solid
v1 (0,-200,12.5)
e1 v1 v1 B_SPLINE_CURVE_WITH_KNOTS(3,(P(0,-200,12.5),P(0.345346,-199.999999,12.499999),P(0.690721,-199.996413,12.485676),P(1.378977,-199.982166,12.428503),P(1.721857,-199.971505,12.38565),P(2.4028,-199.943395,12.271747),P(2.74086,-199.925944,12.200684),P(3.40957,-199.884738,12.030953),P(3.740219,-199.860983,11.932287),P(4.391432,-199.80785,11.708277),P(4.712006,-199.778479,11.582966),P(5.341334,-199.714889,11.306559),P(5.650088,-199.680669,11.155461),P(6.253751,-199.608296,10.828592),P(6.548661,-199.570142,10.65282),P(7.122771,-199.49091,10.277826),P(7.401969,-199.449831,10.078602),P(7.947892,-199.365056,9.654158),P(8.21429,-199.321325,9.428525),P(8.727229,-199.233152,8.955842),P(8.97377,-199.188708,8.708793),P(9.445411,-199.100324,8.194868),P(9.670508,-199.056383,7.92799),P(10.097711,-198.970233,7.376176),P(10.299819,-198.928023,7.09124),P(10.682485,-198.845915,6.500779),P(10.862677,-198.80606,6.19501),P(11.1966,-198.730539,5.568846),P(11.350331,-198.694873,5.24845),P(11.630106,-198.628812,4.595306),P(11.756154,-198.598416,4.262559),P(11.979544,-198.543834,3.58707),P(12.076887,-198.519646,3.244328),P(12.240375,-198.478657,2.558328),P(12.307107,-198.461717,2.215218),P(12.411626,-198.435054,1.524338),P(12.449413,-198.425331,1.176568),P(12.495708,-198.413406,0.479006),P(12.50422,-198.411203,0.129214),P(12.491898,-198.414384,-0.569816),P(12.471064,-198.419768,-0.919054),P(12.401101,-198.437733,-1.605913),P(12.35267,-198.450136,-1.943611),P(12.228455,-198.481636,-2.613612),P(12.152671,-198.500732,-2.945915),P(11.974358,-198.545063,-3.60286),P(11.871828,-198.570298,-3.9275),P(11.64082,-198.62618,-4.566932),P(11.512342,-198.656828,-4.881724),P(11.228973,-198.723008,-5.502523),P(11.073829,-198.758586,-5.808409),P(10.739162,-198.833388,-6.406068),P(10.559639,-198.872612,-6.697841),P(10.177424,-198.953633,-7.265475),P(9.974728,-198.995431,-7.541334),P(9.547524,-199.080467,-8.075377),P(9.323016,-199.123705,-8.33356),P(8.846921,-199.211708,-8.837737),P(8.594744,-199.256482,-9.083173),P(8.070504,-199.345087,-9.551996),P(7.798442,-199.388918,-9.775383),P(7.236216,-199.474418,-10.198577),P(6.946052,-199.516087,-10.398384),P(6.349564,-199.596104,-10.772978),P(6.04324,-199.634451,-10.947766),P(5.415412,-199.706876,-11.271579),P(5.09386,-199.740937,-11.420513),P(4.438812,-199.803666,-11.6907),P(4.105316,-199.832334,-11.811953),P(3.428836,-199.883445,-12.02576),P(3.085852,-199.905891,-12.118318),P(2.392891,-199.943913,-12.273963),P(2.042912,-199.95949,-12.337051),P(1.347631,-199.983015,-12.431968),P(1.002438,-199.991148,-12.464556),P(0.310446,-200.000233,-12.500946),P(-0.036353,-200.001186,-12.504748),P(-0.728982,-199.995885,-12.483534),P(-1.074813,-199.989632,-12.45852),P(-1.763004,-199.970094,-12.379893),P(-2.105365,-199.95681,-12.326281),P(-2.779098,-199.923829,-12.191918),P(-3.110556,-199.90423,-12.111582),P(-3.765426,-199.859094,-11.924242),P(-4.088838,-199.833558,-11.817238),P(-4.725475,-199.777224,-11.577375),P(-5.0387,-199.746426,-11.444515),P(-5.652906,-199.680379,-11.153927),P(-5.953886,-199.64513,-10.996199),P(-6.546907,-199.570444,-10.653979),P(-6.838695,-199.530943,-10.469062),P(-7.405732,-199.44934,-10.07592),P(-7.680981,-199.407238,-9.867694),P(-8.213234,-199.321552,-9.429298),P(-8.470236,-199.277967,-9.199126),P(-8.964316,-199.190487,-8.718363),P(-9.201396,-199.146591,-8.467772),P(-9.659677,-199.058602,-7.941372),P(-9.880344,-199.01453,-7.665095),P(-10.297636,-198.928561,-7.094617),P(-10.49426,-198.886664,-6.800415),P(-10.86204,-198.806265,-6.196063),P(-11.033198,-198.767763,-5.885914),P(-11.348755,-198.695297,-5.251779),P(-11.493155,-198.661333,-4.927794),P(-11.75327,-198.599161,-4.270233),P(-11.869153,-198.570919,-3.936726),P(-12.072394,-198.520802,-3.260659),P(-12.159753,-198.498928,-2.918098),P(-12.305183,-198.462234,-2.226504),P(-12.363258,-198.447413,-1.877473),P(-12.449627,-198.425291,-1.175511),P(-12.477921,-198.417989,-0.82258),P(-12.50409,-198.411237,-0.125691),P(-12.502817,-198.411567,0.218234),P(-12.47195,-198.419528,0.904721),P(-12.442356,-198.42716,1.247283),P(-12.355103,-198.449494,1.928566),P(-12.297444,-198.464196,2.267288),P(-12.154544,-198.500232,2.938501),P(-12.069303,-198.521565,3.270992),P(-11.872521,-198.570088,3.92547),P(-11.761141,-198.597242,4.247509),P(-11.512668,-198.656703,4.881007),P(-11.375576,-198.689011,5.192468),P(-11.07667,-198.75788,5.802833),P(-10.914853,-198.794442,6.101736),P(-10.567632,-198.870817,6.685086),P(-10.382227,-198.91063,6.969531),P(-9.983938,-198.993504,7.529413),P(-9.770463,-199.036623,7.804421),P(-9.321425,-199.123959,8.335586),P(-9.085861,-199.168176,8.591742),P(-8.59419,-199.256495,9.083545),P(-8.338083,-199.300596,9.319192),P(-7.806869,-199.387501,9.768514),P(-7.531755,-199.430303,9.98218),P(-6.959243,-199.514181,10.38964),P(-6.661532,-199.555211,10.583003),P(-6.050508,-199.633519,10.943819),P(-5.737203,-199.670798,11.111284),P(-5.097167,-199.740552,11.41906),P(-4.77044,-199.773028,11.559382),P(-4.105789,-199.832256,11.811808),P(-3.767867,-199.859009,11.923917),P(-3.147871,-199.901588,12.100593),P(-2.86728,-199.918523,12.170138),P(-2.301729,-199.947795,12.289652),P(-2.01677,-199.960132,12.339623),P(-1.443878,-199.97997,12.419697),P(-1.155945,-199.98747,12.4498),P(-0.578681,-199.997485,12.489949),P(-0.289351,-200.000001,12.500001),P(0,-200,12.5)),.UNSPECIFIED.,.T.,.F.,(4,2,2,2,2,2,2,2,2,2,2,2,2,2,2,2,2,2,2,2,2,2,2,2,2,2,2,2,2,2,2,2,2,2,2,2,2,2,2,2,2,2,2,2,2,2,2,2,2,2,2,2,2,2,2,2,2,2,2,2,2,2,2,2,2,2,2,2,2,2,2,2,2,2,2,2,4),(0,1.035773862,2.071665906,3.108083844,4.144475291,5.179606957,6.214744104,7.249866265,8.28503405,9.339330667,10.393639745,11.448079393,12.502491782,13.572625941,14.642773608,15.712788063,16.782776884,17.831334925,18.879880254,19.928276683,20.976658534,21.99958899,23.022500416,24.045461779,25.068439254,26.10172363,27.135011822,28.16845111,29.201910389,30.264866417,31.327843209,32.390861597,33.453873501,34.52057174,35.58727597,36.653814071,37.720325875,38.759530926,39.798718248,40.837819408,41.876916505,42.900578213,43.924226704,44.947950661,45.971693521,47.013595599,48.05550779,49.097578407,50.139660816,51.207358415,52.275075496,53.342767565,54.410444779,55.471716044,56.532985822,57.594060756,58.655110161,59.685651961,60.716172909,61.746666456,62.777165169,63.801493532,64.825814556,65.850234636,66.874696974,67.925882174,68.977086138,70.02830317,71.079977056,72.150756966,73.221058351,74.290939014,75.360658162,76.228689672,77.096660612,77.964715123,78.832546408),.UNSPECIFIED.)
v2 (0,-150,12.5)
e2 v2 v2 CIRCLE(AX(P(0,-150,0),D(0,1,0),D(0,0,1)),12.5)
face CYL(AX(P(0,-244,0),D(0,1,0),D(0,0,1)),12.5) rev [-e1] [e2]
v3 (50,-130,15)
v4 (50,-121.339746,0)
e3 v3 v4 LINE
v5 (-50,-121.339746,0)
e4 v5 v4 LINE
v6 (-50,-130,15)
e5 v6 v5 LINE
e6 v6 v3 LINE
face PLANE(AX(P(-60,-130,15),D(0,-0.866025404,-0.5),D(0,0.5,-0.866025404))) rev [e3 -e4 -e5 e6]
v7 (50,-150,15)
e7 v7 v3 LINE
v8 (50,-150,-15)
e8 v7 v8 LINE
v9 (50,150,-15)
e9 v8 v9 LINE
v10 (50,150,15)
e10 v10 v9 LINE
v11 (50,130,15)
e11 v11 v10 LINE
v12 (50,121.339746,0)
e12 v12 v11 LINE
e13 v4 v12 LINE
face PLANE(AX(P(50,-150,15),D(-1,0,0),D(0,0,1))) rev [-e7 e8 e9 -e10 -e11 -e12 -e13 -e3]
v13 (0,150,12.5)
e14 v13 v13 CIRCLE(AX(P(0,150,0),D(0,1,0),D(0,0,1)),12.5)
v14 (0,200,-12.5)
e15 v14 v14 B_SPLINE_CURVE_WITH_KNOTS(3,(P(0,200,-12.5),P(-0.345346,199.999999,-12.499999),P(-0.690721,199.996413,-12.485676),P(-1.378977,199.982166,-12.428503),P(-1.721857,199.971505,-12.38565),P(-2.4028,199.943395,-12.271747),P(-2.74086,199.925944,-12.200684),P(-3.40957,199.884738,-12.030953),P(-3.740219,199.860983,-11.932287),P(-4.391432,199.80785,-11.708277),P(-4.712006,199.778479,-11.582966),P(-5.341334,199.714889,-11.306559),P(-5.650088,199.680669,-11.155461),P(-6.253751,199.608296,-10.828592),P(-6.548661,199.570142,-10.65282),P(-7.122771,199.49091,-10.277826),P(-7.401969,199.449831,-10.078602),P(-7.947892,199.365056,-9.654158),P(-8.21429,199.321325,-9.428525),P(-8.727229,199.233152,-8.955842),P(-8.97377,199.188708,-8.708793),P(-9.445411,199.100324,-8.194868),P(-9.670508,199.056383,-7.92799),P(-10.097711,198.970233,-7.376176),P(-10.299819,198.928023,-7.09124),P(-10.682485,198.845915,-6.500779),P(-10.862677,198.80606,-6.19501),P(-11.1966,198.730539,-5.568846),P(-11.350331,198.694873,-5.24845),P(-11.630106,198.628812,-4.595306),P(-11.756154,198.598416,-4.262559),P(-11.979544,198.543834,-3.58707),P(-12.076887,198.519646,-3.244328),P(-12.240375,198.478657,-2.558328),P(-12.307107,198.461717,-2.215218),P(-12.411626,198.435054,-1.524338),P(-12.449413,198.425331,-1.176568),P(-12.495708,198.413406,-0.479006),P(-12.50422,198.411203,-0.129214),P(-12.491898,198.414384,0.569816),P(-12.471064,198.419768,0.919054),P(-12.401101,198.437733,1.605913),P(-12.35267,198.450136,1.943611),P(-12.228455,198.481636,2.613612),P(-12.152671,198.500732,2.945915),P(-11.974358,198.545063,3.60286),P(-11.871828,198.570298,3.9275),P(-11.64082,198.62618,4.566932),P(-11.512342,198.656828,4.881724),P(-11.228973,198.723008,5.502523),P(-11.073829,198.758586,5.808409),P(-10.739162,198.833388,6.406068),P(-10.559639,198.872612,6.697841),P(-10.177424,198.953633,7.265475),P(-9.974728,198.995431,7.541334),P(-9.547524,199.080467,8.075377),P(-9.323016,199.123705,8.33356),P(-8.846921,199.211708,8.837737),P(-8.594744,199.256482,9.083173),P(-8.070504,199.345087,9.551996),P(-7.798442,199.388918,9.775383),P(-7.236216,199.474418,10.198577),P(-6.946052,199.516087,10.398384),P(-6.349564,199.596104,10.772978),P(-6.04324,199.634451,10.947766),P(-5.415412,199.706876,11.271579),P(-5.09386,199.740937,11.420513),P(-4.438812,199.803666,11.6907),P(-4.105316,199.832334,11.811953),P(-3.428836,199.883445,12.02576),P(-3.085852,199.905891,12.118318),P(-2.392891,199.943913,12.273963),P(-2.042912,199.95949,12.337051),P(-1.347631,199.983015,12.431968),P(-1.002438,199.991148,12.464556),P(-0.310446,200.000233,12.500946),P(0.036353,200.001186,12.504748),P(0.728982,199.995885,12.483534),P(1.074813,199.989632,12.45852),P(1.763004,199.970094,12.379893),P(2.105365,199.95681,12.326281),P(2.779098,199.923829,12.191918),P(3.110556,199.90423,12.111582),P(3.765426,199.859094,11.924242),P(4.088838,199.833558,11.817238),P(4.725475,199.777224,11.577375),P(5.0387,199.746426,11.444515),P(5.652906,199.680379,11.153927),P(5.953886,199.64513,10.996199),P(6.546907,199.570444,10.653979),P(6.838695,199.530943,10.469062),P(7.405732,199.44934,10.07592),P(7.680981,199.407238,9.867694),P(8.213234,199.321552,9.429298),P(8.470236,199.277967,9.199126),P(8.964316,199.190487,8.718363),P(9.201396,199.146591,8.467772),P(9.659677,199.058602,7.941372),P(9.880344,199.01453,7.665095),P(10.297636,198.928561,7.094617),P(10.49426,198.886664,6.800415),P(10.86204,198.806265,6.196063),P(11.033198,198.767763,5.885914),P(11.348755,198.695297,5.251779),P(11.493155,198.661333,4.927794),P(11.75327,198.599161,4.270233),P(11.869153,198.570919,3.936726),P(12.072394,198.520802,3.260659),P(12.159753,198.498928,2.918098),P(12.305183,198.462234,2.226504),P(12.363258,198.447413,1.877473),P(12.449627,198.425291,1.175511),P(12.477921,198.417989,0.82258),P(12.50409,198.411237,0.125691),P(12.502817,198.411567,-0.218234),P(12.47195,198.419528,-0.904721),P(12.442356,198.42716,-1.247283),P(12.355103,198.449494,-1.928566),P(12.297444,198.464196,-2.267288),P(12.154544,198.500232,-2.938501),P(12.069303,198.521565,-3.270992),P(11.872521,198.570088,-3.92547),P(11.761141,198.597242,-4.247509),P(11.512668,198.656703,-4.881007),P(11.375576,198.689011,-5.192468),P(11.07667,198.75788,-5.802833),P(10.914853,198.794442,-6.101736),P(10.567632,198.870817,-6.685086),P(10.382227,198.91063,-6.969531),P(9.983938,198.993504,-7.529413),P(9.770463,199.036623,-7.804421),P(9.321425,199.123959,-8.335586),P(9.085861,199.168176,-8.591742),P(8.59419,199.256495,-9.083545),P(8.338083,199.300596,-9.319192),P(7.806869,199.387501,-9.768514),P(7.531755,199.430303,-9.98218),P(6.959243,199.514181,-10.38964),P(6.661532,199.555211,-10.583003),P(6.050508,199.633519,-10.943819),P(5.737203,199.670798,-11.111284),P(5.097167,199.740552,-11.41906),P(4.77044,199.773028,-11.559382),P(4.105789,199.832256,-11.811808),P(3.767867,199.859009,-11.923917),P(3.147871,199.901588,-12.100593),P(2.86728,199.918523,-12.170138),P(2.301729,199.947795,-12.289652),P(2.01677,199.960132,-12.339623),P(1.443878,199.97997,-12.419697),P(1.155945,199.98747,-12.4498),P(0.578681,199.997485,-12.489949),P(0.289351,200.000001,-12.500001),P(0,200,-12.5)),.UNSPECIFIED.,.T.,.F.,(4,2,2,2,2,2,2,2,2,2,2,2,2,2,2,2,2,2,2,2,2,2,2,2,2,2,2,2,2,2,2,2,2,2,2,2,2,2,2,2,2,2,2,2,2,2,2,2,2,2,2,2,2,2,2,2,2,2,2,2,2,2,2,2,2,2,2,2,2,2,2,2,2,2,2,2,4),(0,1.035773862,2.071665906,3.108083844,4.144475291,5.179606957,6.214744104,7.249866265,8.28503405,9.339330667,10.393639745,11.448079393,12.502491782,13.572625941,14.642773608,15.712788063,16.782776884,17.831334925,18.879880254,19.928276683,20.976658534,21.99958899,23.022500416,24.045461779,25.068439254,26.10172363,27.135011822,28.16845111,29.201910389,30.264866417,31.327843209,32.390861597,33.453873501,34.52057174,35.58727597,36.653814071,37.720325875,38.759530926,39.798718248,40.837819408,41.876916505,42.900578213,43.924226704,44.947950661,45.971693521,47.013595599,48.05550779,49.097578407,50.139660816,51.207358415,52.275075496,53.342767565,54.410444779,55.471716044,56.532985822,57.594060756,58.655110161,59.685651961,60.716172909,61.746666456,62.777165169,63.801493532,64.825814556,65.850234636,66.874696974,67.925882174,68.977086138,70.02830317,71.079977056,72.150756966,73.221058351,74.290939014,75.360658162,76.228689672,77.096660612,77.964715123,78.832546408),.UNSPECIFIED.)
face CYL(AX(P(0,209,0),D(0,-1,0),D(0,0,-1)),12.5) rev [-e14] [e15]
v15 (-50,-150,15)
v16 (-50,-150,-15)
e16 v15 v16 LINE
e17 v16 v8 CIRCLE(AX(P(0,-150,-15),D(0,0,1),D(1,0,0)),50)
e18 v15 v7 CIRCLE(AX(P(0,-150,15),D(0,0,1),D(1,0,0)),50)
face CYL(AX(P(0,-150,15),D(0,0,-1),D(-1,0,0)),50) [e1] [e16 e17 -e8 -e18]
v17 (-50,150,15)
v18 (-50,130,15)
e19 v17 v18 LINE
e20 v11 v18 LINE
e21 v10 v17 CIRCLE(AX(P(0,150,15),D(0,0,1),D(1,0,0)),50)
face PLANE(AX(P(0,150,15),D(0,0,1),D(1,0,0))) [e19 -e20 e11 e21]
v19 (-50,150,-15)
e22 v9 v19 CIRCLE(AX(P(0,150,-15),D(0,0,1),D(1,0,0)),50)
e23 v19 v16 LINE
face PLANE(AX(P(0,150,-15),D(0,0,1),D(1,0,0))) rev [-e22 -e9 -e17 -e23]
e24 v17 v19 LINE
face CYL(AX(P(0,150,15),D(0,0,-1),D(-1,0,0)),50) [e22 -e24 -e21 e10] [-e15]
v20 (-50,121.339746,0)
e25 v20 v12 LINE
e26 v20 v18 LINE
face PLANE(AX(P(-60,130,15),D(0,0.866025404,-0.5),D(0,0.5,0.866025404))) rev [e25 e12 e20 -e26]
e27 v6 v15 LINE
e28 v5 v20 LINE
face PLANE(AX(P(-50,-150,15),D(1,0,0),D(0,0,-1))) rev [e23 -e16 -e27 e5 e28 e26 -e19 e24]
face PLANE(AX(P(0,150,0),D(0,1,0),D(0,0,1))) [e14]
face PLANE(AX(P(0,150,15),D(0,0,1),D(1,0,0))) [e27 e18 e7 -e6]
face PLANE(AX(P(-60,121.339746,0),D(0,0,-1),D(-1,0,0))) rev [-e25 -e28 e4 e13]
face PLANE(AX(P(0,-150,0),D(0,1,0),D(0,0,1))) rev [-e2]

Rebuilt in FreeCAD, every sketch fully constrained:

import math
import FreeCAD as App
import Part
import Sketcher

V = App.Vector
Q = App.Units.Quantity

doc = App.newDocument("Part")
body = doc.addObject("PartDesign::Body", "Body")

sketch1 = doc.addObject("Sketcher::SketchObject", "Sketch")
body.addObject(sketch1)
sketch1.AttachmentSupport = (doc.XY_Plane, [""])
sketch1.MapMode = "FlatFace"
sketch1.addGeometry([
    Part.LineSegment(V(-50, 150, 0), V(-50, -150, 0)),
    Part.ArcOfCircle(Part.Circle(V(0, -150, 0), V(0, 0, 1), 50), math.radians(180), math.radians(360)),
    Part.LineSegment(V(50, -150, 0), V(50, 150, 0)),
    Part.ArcOfCircle(Part.Circle(V(0, 150, 0), V(0, 0, 1), 50), math.radians(0), math.radians(180)),
], False)
sketch1.addConstraint([
    Sketcher.Constraint("Tangent", 0, 2, 1, 1),
    Sketcher.Constraint("Tangent", 1, 2, 2, 1),
    Sketcher.Constraint("Tangent", 2, 2, 3, 1),
    Sketcher.Constraint("Tangent", 3, 2, 0, 1),
    Sketcher.Constraint("Vertical", 0),
    Sketcher.Constraint("Vertical", 2),
    Sketcher.Constraint("Symmetric", 1, 3, 3, 3, -1, 1),
    Sketcher.Constraint("Radius", 1, 50.0),
    Sketcher.Constraint("DistanceY", 0, 2, 0, 1, 300.0),
])
pad1 = doc.addObject("PartDesign::Pad", "Pad")
body.addObject(pad1)
pad1.Profile = sketch1
pad1.Length = 30
pad1.Midplane = True

sketch2 = doc.addObject("Sketcher::SketchObject", "Sketch001")
body.addObject(sketch2)
sketch2.AttachmentSupport = (doc.XZ_Plane, [""])
sketch2.MapMode = "FlatFace"
sketch2.AttachmentOffset = App.Placement(V(0, 0, -150), App.Rotation())
sketch2.addGeometry(Part.Circle(V(0, 0, 0), V(0, 0, 1), 12), False)
sketch2.addConstraint([
    Sketcher.Constraint("Coincident", 0, 3, -1, 1),
    Sketcher.Constraint("Diameter", 0, 25.0),
])
pocket1 = doc.addObject("PartDesign::Pocket", "Pocket")
body.addObject(pocket1)
pocket1.Profile = sketch2
pocket1.Length = 59

sketch3 = doc.addObject("Sketcher::SketchObject", "Sketch002")
body.addObject(sketch3)
sketch3.AttachmentSupport = (doc.YZ_Plane, [""])
sketch3.MapMode = "FlatFace"
sketch3.AttachmentOffset = App.Placement(V(0, 0, 50), App.Rotation())
sketch3.addGeometry([
    Part.LineSegment(V(121, 0, 0), V(130, 15, 0)),
    Part.LineSegment(V(130, 15, 0), V(-130, 15, 0)),
    Part.LineSegment(V(-130, 15, 0), V(-121, 0, 0)),
    Part.LineSegment(V(-121, 0, 0), V(121, 0, 0)),
], False)
sketch3.addConstraint([
    Sketcher.Constraint("Coincident", 0, 2, 1, 1),
    Sketcher.Constraint("Coincident", 1, 2, 2, 1),
    Sketcher.Constraint("Coincident", 2, 2, 3, 1),
    Sketcher.Constraint("Coincident", 3, 2, 0, 1),
    Sketcher.Constraint("Horizontal", 1),
    Sketcher.Constraint("Horizontal", 3),
    Sketcher.Constraint("Symmetric", 2, 2, 3, 2, -1, 1),
    Sketcher.Constraint("Equal", 0, 2),
    Sketcher.Constraint("DistanceX", 1, 2, 1, 1, 260.0),
    Sketcher.Constraint("Angle", 0, Q("60 deg")),
    Sketcher.Constraint("DistanceY", -1, 1, 0, 2, 15.0),
])
pocket2 = doc.addObject("PartDesign::Pocket", "Pocket001")
body.addObject(pocket2)
pocket2.Profile = sketch3
pocket2.Length = 110

sketch4 = doc.addObject("Sketcher::SketchObject", "Sketch003")
body.addObject(sketch4)
sketch4.AttachmentSupport = (doc.XZ_Plane, [""])
sketch4.MapMode = "FlatFace"
sketch4.AttachmentOffset = App.Placement(V(0, 0, 150), App.Rotation())
sketch4.addGeometry(Part.Circle(V(0, 0, 0), V(0, 0, 1), 12), False)
sketch4.addConstraint([
    Sketcher.Constraint("Coincident", 0, 3, -1, 1),
    Sketcher.Constraint("Diameter", 0, 25.0),
])
pocket3 = doc.addObject("PartDesign::Pocket", "Pocket002")
body.addObject(pocket3)
pocket3.Profile = sketch4
pocket3.Length = 94
pocket3.Reversed = True

doc.recompute()
